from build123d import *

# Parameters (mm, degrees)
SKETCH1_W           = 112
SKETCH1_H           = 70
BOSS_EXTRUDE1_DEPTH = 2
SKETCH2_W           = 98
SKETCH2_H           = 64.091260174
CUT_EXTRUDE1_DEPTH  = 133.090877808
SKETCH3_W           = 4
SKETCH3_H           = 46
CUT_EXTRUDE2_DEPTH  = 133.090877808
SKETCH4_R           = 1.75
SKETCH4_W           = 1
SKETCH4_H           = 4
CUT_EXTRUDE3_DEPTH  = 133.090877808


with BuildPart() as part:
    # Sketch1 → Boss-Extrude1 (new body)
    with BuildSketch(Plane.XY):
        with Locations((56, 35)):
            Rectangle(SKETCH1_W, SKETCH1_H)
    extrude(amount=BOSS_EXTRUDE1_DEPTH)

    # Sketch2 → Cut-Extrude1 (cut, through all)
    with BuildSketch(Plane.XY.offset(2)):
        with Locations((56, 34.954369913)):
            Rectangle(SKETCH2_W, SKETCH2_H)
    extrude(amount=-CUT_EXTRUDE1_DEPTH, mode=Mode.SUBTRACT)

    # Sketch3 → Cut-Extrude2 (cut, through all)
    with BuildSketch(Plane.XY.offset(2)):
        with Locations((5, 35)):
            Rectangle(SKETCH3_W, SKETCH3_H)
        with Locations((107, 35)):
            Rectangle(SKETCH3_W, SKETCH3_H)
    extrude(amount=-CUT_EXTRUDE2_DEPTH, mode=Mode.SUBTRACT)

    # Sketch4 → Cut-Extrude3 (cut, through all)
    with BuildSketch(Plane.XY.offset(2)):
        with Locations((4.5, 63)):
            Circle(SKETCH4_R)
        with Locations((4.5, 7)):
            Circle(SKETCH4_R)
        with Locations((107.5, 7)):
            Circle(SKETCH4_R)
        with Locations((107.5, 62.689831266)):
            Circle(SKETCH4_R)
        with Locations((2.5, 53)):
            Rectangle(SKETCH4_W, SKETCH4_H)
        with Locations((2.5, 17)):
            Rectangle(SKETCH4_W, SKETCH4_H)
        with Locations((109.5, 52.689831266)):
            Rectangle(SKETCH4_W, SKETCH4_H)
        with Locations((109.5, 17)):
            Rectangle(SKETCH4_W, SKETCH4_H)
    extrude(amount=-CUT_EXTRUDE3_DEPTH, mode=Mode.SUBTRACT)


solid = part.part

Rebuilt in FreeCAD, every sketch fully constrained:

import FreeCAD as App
import Part
import Sketcher

doc = App.newDocument("Part")
params = doc.addObject("Spreadsheet::Sheet", "Params")
for row, (alias, value) in enumerate([
    ("sketch1_width", "112 mm"),
    ("sketch1_height", "70 mm"),
    ("pad1_length", "2 mm"),
    ("sketch2_width", "98 mm"),
    ("sketch3_width", "4 mm"),
    ("sketch3_height", "46 mm"),
    ("sketch4_diameter", "3.5 mm"),
    ("sketch4_width", "1 mm"),
    ("sketch4_height", "4 mm"),
], start=1):
    params.set(f"A{row}", alias)
    params.set(f"B{row}", "=" + value)
    params.setAlias(f"B{row}", alias)

body = doc.addObject("PartDesign::Body", "Body")

sketch1 = body.newObject("Sketcher::SketchObject", "Sketch")
sketch1.AttachmentSupport = (doc.getObject("XY_Plane"), [""])
sketch1.MapMode = "FlatFace"
sketch1.addGeometry(Part.LineSegment(App.Vector(0, 70, 0), App.Vector(0, 0, 0)), False)
sketch1.addGeometry(Part.LineSegment(App.Vector(0, 0, 0), App.Vector(112, 0, 0)), False)
sketch1.addGeometry(Part.LineSegment(App.Vector(112, 0, 0), App.Vector(112, 70, 0)), False)
sketch1.addGeometry(Part.LineSegment(App.Vector(112, 70, 0), App.Vector(0, 70, 0)), False)
sketch1.addConstraint(Sketcher.Constraint("Coincident", 0, 2, 1, 1))
sketch1.addConstraint(Sketcher.Constraint("Coincident", 1, 2, 2, 1))
sketch1.addConstraint(Sketcher.Constraint("Coincident", 2, 2, 3, 1))
sketch1.addConstraint(Sketcher.Constraint("Coincident", 3, 2, 0, 1))
sketch1.addConstraint(Sketcher.Constraint("Vertical", 0))
sketch1.addConstraint(Sketcher.Constraint("Horizontal", 1))
sketch1.addConstraint(Sketcher.Constraint("Vertical", 2))
sketch1.addConstraint(Sketcher.Constraint("Horizontal", 3))
sketch1.addConstraint(Sketcher.Constraint("Coincident", 0, 2, -1, 1))
sketch1.addConstraint(Sketcher.Constraint("DistanceX", 1, 1, 1, 2, 112.0))
sketch1.addConstraint(Sketcher.Constraint("DistanceY", 0, 2, 0, 1, 70.0))
sketch1.setExpression("Constraints[9]", "Params.sketch1_width")
sketch1.setExpression("Constraints[10]", "Params.sketch1_height")
pad1 = body.newObject("PartDesign::Pad", "Pad")
pad1.Profile = sketch1
pad1.setExpression("Length", "Params.pad1_length")

sketch2 = body.newObject("Sketcher::SketchObject", "Sketch001")
sketch2.AttachmentSupport = (doc.getObject("XY_Plane"), [""])
sketch2.MapMode = "FlatFace"
sketch2.AttachmentOffset = App.Placement(App.Vector(0, 0, 2), App.Rotation())
sketch2.addGeometry(Part.LineSegment(App.Vector(7, 67, 0), App.Vector(7, 3, 0)), False)
sketch2.addGeometry(Part.LineSegment(App.Vector(7, 3, 0), App.Vector(105, 3, 0)), False)
sketch2.addGeometry(Part.LineSegment(App.Vector(105, 3, 0), App.Vector(105, 67, 0)), False)
sketch2.addGeometry(Part.LineSegment(App.Vector(105, 67, 0), App.Vector(7, 67, 0)), False)
sketch2.addConstraint(Sketcher.Constraint("Coincident", 0, 2, 1, 1))
sketch2.addConstraint(Sketcher.Constraint("Coincident", 1, 2, 2, 1))
sketch2.addConstraint(Sketcher.Constraint("Coincident", 2, 2, 3, 1))
sketch2.addConstraint(Sketcher.Constraint("Coincident", 3, 2, 0, 1))
sketch2.addConstraint(Sketcher.Constraint("Vertical", 0))
sketch2.addConstraint(Sketcher.Constraint("Horizontal", 1))
sketch2.addConstraint(Sketcher.Constraint("Vertical", 2))
sketch2.addConstraint(Sketcher.Constraint("Horizontal", 3))
sketch2.addConstraint(Sketcher.Constraint("DistanceX", 1, 1, 1, 2, 98.0))
sketch2.addConstraint(Sketcher.Constraint("DistanceX", -1, 1, 0, 2, 7.0))
sketch2.addConstraint(Sketcher.Constraint("DistanceY", -1, 1, 2, 2, 67.0))
sketch2.addConstraint(Sketcher.Constraint("DistanceY", 0, 2, 0, 1, 64.09126))
sketch2.setExpression("Constraints[8]", "Params.sketch2_width")
pocket1 = body.newObject("PartDesign::Pocket", "Pocket")
pocket1.Profile = sketch2
pocket1.Type = "ThroughAll"

sketch3 = body.newObject("Sketcher::SketchObject", "Sketch002")
sketch3.AttachmentSupport = (doc.getObject("XY_Plane"), [""])
sketch3.MapMode = "FlatFace"
sketch3.AttachmentOffset = App.Placement(App.Vector(0, 0, 2), App.Rotation())
sketch3.addGeometry(Part.LineSegment(App.Vector(3, 58, 0), App.Vector(3, 12, 0)), False)
sketch3.addGeometry(Part.LineSegment(App.Vector(3, 12, 0), App.Vector(7, 12, 0)), False)
sketch3.addGeometry(Part.LineSegment(App.Vector(7, 12, 0), App.Vector(7, 58, 0)), False)
sketch3.addGeometry(Part.LineSegment(App.Vector(7, 58, 0), App.Vector(3, 58, 0)), False)
sketch3.addGeometry(Part.LineSegment(App.Vector(105, 58, 0), App.Vector(105, 12, 0)), False)
sketch3.addGeometry(Part.LineSegment(App.Vector(105, 12, 0), App.Vector(109, 12, 0)), False)
sketch3.addGeometry(Part.LineSegment(App.Vector(109, 12, 0), App.Vector(109, 58, 0)), False)
sketch3.addGeometry(Part.LineSegment(App.Vector(109, 58, 0), App.Vector(105, 58, 0)), False)
sketch3.addConstraint(Sketcher.Constraint("Coincident", 0, 2, 1, 1))
sketch3.addConstraint(Sketcher.Constraint("Coincident", 1, 2, 2, 1))
sketch3.addConstraint(Sketcher.Constraint("Coincident", 2, 2, 3, 1))
sketch3.addConstraint(Sketcher.Constraint("Coincident", 3, 2, 0, 1))
sketch3.addConstraint(Sketcher.Constraint("Coincident", 4, 2, 5, 1))
sketch3.addConstraint(Sketcher.Constraint("Coincident", 5, 2, 6, 1))
sketch3.addConstraint(Sketcher.Constraint("Coincident", 6, 2, 7, 1))
sketch3.addConstraint(Sketcher.Constraint("Coincident", 7, 2, 4, 1))
sketch3.addConstraint(Sketcher.Constraint("Vertical", 0))
sketch3.addConstraint(Sketcher.Constraint("Horizontal", 1))
sketch3.addConstraint(Sketcher.Constraint("Vertical", 2))
sketch3.addConstraint(Sketcher.Constraint("Horizontal", 3))
sketch3.addConstraint(Sketcher.Constraint("Vertical", 4))
sketch3.addConstraint(Sketcher.Constraint("Horizontal", 5))
sketch3.addConstraint(Sketcher.Constraint("Vertical", 6))
sketch3.addConstraint(Sketcher.Constraint("Horizontal", 7))
sketch3.addConstraint(Sketcher.Constraint("Horizontal", 1, 2, 4, 2))
sketch3.addConstraint(Sketcher.Constraint("Horizontal", 3, 2, 6, 2))
sketch3.addConstraint(Sketcher.Constraint("Equal", 3, 5))
sketch3.addConstraint(Sketcher.Constraint("DistanceX", 1, 1, 1, 2, 4.0))
sketch3.addConstraint(Sketcher.Constraint("DistanceY", 0, 2, 0, 1, 46.0))
sketch3.addConstraint(Sketcher.Constraint("DistanceX", -1, 1, 0, 2, 3.0))
sketch3.addConstraint(Sketcher.Constraint("DistanceY", -1, 1, 0, 2, 12.0))
sketch3.addConstraint(Sketcher.Constraint("DistanceX", -1, 1, 4, 2, 105.0))
sketch3.setExpression("Constraints[19]", "Params.sketch3_width")
sketch3.setExpression("Constraints[20]", "Params.sketch3_height")
pocket2 = body.newObject("PartDesign::Pocket", "Pocket001")
pocket2.Profile = sketch3
pocket2.Type = "ThroughAll"

sketch4 = body.newObject("Sketcher::SketchObject", "Sketch003")
sketch4.AttachmentSupport = (doc.getObject("XY_Plane"), [""])
sketch4.MapMode = "FlatFace"
sketch4.AttachmentOffset = App.Placement(App.Vector(0, 0, 2), App.Rotation())
sketch4.addGeometry(Part.Circle(App.Vector(4.5, 63, 0), App.Vector(0, 0, 1), 1.8), False)
sketch4.addGeometry(Part.Circle(App.Vector(4.5, 7, 0), App.Vector(0, 0, 1), 1.8), False)
sketch4.addGeometry(Part.Circle(App.Vector(107.5, 7, 0), App.Vector(0, 0, 1), 1.8), False)
sketch4.addGeometry(Part.Circle(App.Vector(107.5, 62.7, 0), App.Vector(0, 0, 1), 1.8), False)
sketch4.addGeometry(Part.LineSegment(App.Vector(2, 55, 0), App.Vector(2, 51, 0)), False)
sketch4.addGeometry(Part.LineSegment(App.Vector(2, 51, 0), App.Vector(3, 51, 0)), False)
sketch4.addGeometry(Part.LineSegment(App.Vector(3, 51, 0), App.Vector(3, 55, 0)), False)
sketch4.addGeometry(Part.LineSegment(App.Vector(3, 55, 0), App.Vector(2, 55, 0)), False)
sketch4.addGeometry(Part.LineSegment(App.Vector(2, 19, 0), App.Vector(2, 15, 0)), False)
sketch4.addGeometry(Part.LineSegment(App.Vector(2, 15, 0), App.Vector(3, 15, 0)), False)
sketch4.addGeometry(Part.LineSegment(App.Vector(3, 15, 0), App.Vector(3, 19, 0)), False)
sketch4.addGeometry(Part.LineSegment(App.Vector(3, 19, 0), App.Vector(2, 19, 0)), False)
sketch4.addGeometry(Part.LineSegment(App.Vector(109, 54.7, 0), App.Vector(109, 50.7, 0)), False)
sketch4.addGeometry(Part.LineSegment(App.Vector(109, 50.7, 0), App.Vector(110, 50.7, 0)), False)
sketch4.addGeometry(Part.LineSegment(App.Vector(110, 50.7, 0), App.Vector(110, 54.7, 0)), False)
sketch4.addGeometry(Part.LineSegment(App.Vector(110, 54.7, 0), App.Vector(109, 54.7, 0)), False)
sketch4.addGeometry(Part.LineSegment(App.Vector(109, 19, 0), App.Vector(109, 15, 0)), False)
sketch4.addGeometry(Part.LineSegment(App.Vector(109, 15, 0), App.Vector(110, 15, 0)), False)
sketch4.addGeometry(Part.LineSegment(App.Vector(110, 15, 0), App.Vector(110, 19, 0)), False)
sketch4.addGeometry(Part.LineSegment(App.Vector(110, 19, 0), App.Vector(109, 19, 0)), False)
sketch4.addConstraint(Sketcher.Constraint("Coincident", 4, 2, 5, 1))
sketch4.addConstraint(Sketcher.Constraint("Coincident", 5, 2, 6, 1))
sketch4.addConstraint(Sketcher.Constraint("Coincident", 6, 2, 7, 1))
sketch4.addConstraint(Sketcher.Constraint("Coincident", 7, 2, 4, 1))
sketch4.addConstraint(Sketcher.Constraint("Coincident", 8, 2, 9, 1))
sketch4.addConstraint(Sketcher.Constraint("Coincident", 9, 2, 10, 1))
sketch4.addConstraint(Sketcher.Constraint("Coincident", 10, 2, 11, 1))
sketch4.addConstraint(Sketcher.Constraint("Coincident", 11, 2, 8, 1))
sketch4.addConstraint(Sketcher.Constraint("Coincident", 12, 2, 13, 1))
sketch4.addConstraint(Sketcher.Constraint("Coincident", 13, 2, 14, 1))
sketch4.addConstraint(Sketcher.Constraint("Coincident", 14, 2, 15, 1))
sketch4.addConstraint(Sketcher.Constraint("Coincident", 15, 2, 12, 1))
sketch4.addConstraint(Sketcher.Constraint("Coincident", 16, 2, 17, 1))
sketch4.addConstraint(Sketcher.Constraint("Coincident", 17, 2, 18, 1))
sketch4.addConstraint(Sketcher.Constraint("Coincident", 18, 2, 19, 1))
sketch4.addConstraint(Sketcher.Constraint("Coincident", 19, 2, 16, 1))
sketch4.addConstraint(Sketcher.Constraint("Vertical", 4))
sketch4.addConstraint(Sketcher.Constraint("Horizontal", 5))
sketch4.addConstraint(Sketcher.Constraint("Vertical", 6))
sketch4.addConstraint(Sketcher.Constraint("Horizontal", 7))
sketch4.addConstraint(Sketcher.Constraint("Vertical", 8))
sketch4.addConstraint(Sketcher.Constraint("Horizontal", 9))
sketch4.addConstraint(Sketcher.Constraint("Vertical", 10))
sketch4.addConstraint(Sketcher.Constraint("Horizontal", 11))
sketch4.addConstraint(Sketcher.Constraint("Vertical", 12))
sketch4.addConstraint(Sketcher.Constraint("Horizontal", 13))
sketch4.addConstraint(Sketcher.Constraint("Vertical", 14))
sketch4.addConstraint(Sketcher.Constraint("Horizontal", 15))
sketch4.addConstraint(Sketcher.Constraint("Vertical", 16))
sketch4.addConstraint(Sketcher.Constraint("Horizontal", 17))
sketch4.addConstraint(Sketcher.Constraint("Vertical", 18))
sketch4.addConstraint(Sketcher.Constraint("Horizontal", 19))
sketch4.addConstraint(Sketcher.Constraint("Equal", 0, 1))
sketch4.addConstraint(Sketcher.Constraint("Equal", 1, 2))
sketch4.addConstraint(Sketcher.Constraint("Equal", 2, 3))
sketch4.addConstraint(Sketcher.Constraint("Horizontal", 1, 3, 2, 3))
sketch4.addConstraint(Sketcher.Constraint("Horizontal", 9, 2, 16, 2))
sketch4.addConstraint(Sketcher.Constraint("Horizontal", 11, 2, 18, 2))
sketch4.addConstraint(Sketcher.Constraint("Vertical", 0, 3, 1, 3))
sketch4.addConstraint(Sketcher.Constraint("Vertical", 2, 3, 3, 3))
sketch4.addConstraint(Sketcher.Constraint("Vertical", 7, 2, 8, 2))
sketch4.addConstraint(Sketcher.Constraint("Vertical", 6, 2, 9, 2))
sketch4.addConstraint(Sketcher.Constraint("Vertical", 15, 2, 16, 2))
sketch4.addConstraint(Sketcher.Constraint("Vertical", 14, 2, 17, 2))
sketch4.addConstraint(Sketcher.Constraint("Equal", 11, 13))
sketch4.addConstraint(Sketcher.Constraint("Equal", 6, 8))
sketch4.addConstraint(Sketcher.Constraint("Equal", 10, 12))
sketch4.addConstraint(Sketcher.Constraint("Diameter", 0, 3.5))
sketch4.addConstraint(Sketcher.Constraint("DistanceX", 5, 1, 5, 2, 1.0))
sketch4.addConstraint(Sketcher.Constraint("DistanceY", 4, 2, 4, 1, 4.0))
sketch4.addConstraint(Sketcher.Constraint("DistanceY", -1, 1, 0, 3, 63.0))
sketch4.addConstraint(Sketcher.Constraint("DistanceY", -1, 1, 1, 3, 7.0))
sketch4.addConstraint(Sketcher.Constraint("DistanceX", -1, 1, 4, 2, 2.0))
sketch4.addConstraint(Sketcher.Constraint("DistanceY", -1, 1, 4, 2, 51.0))
sketch4.addConstraint(Sketcher.Constraint("DistanceY", -1, 1, 8, 2, 15.0))
sketch4.addConstraint(Sketcher.Constraint("DistanceX", -1, 1, 12, 2, 109.0))
sketch4.addConstraint(Sketcher.Constraint("DistanceX", 1, 3, 2, 3, 103.0))
sketch4.addConstraint(Sketcher.Constraint("DistanceY", 12, 2, 3, 3, 12.0))
sketch4.addConstraint(Sketcher.Constraint("DistanceX", -1, 1, 0, 3, 4.5))
sketch4.addConstraint(Sketcher.Constraint("DistanceY", -1, 1, 3, 3, 62.689831))
sketch4.setExpression("Constraints[47]", "Params.sketch4_diameter")
sketch4.setExpression("Constraints[48]", "Params.sketch4_width")
sketch4.setExpression("Constraints[49]", "Params.sketch4_height")
pocket3 = body.newObject("PartDesign::Pocket", "Pocket002")
pocket3.Profile = sketch4
pocket3.Type = "ThroughAll"

doc.recompute()
